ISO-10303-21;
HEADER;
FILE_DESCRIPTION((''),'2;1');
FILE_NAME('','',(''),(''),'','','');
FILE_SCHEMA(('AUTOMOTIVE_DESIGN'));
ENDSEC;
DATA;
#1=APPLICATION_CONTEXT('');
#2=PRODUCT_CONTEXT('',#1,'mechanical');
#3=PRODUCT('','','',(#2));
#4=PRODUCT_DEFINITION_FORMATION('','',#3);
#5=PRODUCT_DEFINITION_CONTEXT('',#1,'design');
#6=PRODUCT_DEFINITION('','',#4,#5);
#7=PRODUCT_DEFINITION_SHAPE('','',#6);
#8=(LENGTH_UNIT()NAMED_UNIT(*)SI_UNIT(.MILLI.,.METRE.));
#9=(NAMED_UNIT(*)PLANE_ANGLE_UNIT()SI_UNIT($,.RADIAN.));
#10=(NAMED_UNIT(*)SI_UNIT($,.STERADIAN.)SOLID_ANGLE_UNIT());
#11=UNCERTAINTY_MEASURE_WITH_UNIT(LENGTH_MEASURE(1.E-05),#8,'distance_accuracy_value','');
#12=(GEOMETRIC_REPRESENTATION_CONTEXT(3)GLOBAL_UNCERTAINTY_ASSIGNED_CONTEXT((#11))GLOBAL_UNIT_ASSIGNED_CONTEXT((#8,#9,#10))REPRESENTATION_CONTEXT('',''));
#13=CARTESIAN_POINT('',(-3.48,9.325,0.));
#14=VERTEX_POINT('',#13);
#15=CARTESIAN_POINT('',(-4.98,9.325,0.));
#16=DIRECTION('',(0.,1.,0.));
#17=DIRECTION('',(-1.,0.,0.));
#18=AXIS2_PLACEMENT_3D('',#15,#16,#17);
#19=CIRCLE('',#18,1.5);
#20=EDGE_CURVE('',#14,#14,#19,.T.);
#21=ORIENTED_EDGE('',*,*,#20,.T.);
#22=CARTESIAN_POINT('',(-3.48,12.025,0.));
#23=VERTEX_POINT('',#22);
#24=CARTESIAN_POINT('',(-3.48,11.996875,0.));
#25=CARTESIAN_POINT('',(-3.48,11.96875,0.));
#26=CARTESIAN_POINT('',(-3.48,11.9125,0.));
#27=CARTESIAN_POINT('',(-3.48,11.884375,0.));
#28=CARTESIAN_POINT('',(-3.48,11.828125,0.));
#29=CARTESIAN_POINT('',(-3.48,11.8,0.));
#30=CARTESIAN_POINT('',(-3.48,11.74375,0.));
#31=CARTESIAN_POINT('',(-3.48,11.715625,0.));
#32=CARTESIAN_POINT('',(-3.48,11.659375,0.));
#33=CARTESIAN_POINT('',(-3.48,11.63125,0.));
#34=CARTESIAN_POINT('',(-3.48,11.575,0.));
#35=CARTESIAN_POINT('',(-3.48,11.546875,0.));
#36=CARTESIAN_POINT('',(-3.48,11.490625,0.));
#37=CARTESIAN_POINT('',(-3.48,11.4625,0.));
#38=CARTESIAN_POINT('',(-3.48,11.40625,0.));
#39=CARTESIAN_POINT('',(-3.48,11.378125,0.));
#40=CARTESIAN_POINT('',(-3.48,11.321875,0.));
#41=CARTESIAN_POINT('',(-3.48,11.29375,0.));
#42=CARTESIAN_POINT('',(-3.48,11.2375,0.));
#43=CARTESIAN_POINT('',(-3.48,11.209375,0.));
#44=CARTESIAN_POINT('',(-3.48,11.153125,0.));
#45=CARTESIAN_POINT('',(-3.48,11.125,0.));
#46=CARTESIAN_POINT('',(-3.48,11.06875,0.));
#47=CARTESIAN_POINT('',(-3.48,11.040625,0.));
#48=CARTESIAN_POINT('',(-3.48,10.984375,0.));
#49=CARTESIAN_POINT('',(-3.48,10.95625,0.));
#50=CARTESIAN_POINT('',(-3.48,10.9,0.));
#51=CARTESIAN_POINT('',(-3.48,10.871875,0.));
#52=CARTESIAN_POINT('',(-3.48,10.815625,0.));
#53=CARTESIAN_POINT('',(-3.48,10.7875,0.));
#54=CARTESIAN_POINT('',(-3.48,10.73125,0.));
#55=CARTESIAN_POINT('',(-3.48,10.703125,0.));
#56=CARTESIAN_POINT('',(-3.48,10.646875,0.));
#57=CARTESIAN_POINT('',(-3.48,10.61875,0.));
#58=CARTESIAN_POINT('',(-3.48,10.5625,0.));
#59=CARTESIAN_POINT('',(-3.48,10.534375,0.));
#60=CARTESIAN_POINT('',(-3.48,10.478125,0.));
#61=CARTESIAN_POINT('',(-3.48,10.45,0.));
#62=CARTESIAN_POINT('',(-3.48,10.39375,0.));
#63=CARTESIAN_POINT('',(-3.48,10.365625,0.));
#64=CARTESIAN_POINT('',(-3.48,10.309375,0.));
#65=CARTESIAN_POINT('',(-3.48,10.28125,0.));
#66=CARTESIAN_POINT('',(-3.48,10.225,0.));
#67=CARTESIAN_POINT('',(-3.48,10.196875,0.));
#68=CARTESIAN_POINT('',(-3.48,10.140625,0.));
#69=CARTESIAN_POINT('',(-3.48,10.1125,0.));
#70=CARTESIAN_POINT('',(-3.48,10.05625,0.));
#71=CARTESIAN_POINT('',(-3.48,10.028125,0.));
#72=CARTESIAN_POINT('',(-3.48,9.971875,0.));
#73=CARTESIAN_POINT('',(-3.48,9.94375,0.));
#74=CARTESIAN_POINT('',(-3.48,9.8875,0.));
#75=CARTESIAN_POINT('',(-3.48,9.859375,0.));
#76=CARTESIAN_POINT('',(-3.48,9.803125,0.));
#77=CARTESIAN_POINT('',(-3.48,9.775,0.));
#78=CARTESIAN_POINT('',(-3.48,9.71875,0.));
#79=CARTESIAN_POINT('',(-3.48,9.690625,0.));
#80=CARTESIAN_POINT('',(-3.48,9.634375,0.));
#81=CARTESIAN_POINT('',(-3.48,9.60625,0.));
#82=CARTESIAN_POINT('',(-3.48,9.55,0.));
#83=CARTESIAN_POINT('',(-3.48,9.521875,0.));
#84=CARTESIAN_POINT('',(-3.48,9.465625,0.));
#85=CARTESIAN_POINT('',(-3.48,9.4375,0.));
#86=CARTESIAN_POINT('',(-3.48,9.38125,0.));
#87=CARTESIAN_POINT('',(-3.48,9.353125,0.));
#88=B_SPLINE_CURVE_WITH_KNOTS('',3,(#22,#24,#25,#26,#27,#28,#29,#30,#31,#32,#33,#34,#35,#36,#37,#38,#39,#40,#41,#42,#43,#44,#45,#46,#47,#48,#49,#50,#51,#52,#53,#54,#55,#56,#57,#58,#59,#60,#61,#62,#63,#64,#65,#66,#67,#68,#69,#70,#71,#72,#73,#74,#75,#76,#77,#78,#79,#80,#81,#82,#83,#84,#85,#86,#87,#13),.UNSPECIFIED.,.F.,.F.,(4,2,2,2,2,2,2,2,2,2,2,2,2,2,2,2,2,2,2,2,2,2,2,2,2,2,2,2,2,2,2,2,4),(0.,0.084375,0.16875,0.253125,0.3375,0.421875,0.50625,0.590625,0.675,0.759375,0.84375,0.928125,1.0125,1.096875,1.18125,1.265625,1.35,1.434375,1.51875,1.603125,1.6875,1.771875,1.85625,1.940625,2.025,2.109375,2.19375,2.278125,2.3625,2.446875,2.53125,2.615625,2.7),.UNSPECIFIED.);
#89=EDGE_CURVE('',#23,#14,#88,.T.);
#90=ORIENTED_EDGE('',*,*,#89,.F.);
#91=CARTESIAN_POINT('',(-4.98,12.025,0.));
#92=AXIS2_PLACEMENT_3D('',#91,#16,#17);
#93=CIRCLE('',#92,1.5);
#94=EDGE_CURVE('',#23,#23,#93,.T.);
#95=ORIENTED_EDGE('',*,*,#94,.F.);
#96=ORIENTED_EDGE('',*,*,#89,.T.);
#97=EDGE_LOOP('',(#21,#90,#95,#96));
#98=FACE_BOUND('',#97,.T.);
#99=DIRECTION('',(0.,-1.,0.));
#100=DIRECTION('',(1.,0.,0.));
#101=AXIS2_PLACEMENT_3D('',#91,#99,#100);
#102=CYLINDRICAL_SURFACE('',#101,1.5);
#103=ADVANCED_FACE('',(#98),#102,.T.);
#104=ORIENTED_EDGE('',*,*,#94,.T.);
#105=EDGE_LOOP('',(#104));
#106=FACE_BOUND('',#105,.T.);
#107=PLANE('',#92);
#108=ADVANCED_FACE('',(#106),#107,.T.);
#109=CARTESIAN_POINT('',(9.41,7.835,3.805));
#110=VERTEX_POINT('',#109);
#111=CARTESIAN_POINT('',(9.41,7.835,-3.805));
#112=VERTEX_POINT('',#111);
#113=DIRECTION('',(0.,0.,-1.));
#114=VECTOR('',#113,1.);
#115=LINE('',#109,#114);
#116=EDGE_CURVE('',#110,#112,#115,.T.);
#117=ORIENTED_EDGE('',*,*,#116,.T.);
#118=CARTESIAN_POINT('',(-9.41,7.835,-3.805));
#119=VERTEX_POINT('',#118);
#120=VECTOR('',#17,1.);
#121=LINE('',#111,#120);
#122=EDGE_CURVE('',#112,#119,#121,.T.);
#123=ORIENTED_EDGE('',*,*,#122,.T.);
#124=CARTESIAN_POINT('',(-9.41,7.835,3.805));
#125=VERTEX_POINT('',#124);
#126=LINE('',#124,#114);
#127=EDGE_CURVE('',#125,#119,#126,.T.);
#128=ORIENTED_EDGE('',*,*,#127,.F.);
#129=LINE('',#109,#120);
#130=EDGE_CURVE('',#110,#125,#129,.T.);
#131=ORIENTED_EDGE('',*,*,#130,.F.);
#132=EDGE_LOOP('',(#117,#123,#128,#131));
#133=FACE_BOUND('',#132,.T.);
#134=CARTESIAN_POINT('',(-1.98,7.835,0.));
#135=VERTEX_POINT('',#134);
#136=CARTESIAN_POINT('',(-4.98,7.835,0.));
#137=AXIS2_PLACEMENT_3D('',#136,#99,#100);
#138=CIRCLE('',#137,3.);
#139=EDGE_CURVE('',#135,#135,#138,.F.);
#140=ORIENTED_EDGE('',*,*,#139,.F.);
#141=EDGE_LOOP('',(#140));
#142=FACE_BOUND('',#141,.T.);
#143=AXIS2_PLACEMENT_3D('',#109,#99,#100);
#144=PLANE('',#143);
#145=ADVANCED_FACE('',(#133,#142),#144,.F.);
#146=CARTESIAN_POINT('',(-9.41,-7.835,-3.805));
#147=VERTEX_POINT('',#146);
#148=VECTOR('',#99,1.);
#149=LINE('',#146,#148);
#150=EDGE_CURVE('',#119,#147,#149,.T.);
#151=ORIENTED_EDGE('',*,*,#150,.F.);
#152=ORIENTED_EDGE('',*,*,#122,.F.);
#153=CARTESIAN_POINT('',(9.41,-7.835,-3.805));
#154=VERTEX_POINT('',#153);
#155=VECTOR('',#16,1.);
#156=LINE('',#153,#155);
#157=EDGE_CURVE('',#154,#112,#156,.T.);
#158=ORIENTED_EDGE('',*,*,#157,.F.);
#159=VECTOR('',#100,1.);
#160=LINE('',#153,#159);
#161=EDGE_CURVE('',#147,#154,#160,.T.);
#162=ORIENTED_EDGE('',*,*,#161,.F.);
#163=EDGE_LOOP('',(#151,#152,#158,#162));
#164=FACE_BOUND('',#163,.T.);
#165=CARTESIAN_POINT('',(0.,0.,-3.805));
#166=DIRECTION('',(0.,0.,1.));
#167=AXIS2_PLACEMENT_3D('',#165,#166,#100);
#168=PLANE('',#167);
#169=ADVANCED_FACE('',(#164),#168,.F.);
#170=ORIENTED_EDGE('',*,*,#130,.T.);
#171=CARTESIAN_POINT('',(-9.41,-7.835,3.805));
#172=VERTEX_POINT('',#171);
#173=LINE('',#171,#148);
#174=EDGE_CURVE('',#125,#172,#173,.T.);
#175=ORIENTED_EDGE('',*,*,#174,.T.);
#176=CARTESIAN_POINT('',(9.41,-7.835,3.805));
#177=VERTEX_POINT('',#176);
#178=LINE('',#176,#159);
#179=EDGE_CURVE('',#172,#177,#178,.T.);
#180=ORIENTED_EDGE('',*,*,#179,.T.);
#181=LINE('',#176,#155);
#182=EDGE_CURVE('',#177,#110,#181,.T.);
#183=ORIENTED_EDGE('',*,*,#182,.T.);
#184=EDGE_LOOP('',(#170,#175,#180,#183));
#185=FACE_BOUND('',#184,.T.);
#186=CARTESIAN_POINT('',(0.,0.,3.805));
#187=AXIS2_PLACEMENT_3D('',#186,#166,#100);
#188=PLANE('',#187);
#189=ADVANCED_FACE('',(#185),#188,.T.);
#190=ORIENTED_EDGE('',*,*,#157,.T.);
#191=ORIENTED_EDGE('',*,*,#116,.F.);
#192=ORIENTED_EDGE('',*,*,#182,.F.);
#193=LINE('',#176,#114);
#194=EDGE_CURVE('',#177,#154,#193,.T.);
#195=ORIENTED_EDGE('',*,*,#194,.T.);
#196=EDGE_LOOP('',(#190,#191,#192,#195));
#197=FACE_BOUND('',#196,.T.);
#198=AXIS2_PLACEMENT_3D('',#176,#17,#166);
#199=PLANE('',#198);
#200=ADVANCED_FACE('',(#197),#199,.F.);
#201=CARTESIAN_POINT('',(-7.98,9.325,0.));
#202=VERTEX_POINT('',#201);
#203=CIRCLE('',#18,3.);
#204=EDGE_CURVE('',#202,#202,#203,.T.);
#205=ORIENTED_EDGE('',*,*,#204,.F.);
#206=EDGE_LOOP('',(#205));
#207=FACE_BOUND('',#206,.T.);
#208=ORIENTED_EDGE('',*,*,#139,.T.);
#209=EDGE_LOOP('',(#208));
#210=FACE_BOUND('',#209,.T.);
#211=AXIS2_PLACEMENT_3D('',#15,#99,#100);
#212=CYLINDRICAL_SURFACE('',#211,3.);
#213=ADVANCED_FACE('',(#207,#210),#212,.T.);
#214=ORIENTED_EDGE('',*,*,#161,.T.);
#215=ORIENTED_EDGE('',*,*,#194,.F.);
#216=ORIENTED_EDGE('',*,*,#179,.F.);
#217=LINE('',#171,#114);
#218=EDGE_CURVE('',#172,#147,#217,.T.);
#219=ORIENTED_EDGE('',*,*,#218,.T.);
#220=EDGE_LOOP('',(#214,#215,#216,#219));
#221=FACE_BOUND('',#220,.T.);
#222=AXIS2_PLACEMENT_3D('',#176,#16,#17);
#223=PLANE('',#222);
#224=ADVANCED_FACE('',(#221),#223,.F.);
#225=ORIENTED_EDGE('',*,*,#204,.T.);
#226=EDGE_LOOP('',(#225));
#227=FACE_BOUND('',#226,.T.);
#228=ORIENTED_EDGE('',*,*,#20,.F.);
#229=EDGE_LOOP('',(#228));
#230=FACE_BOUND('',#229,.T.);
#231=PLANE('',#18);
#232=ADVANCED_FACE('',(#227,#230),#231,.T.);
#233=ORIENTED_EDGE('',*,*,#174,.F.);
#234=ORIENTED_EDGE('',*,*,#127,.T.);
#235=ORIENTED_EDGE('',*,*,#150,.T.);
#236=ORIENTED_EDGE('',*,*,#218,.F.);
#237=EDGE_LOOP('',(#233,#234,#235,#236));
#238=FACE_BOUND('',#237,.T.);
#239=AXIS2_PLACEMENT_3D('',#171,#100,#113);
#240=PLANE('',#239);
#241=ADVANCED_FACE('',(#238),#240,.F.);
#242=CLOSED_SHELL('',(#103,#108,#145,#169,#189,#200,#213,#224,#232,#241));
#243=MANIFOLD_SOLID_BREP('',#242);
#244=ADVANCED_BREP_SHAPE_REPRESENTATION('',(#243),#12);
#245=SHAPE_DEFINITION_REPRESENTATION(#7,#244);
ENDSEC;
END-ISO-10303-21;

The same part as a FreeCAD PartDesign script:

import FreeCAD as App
import Part
import Sketcher

V = App.Vector
Q = App.Units.Quantity

doc = App.newDocument("Part")
body = doc.addObject("PartDesign::Body", "Body")

sketch1 = doc.addObject("Sketcher::SketchObject", "Sketch")
body.addObject(sketch1)
sketch1.AttachmentSupport = (doc.XY_Plane, [""])
sketch1.MapMode = "FlatFace"
sketch1.addGeometry(Part.LineSegment(V(-9, 8, 0), V(-9, -8, 0)), False)
sketch1.addGeometry(Part.LineSegment(V(-9, -8, 0), V(9, -8, 0)), False)
sketch1.addGeometry(Part.LineSegment(V(9, -8, 0), V(9, 8, 0)), False)
sketch1.addGeometry(Part.LineSegment(V(9, 8, 0), V(-9, 8, 0)), False)
sketch1.addConstraint(Sketcher.Constraint("Coincident", 0, 2, 1, 1))
sketch1.addConstraint(Sketcher.Constraint("Coincident", 1, 2, 2, 1))
sketch1.addConstraint(Sketcher.Constraint("Coincident", 2, 2, 3, 1))
sketch1.addConstraint(Sketcher.Constraint("Coincident", 3, 2, 0, 1))
sketch1.addConstraint(Sketcher.Constraint("Vertical", 0))
sketch1.addConstraint(Sketcher.Constraint("Horizontal", 1))
sketch1.addConstraint(Sketcher.Constraint("Vertical", 2))
sketch1.addConstraint(Sketcher.Constraint("Horizontal", 3))
sketch1.addConstraint(Sketcher.Constraint("Symmetric", 0, 2, 2, 2, -1, 1))
sketch1.addConstraint(Sketcher.Constraint("DistanceX", 1, 1, 1, 2, Q("18.82 mm")))
sketch1.addConstraint(Sketcher.Constraint("DistanceY", 0, 2, 0, 1, Q("15.67 mm")))
pad1 = doc.addObject("PartDesign::Pad", "Pad")
body.addObject(pad1)
pad1.Profile = sketch1
pad1.Length = 7.61
pad1.Midplane = True

sketch2 = doc.addObject("Sketcher::SketchObject", "Sketch001")
body.addObject(sketch2)
sketch2.AttachmentSupport = (doc.XZ_Plane, [""])
sketch2.MapMode = "FlatFace"
sketch2.AttachmentOffset = App.Placement(V(0, 0, -7.835), App.Rotation())
sketch2.addGeometry(Part.Circle(V(-5, 0, 0), V(0, 0, 1), 3), False)
sketch2.addConstraint(Sketcher.Constraint("PointOnObject", 0, 3, -1))
sketch2.addConstraint(Sketcher.Constraint("Diameter", 0, Q("6 mm")))
sketch2.addConstraint(Sketcher.Constraint("DistanceX", 0, 3, -1, 1, Q("4.98 mm")))
pad2 = doc.addObject("PartDesign::Pad", "Pad001")
body.addObject(pad2)
pad2.Profile = sketch2
pad2.Length = 1.49
pad2.Reversed = True

sketch3 = doc.addObject("Sketcher::SketchObject", "Sketch002")
body.addObject(sketch3)
sketch3.AttachmentSupport = (doc.XZ_Plane, [""])
sketch3.MapMode = "FlatFace"
sketch3.AttachmentOffset = App.Placement(V(0, 0, -9.325), App.Rotation())
sketch3.addGeometry(Part.Circle(V(-5, 0, 0), V(0, 0, 1), 1.5), False)
sketch3.addConstraint(Sketcher.Constraint("PointOnObject", 0, 3, -1))
sketch3.addConstraint(Sketcher.Constraint("Diameter", 0, Q("3 mm")))
sketch3.addConstraint(Sketcher.Constraint("DistanceX", 0, 3, -1, 1, Q("4.98 mm")))
pad3 = doc.addObject("PartDesign::Pad", "Pad002")
body.addObject(pad3)
pad3.Profile = sketch3
pad3.Length = 2.7
pad3.Reversed = True

doc.recompute()
